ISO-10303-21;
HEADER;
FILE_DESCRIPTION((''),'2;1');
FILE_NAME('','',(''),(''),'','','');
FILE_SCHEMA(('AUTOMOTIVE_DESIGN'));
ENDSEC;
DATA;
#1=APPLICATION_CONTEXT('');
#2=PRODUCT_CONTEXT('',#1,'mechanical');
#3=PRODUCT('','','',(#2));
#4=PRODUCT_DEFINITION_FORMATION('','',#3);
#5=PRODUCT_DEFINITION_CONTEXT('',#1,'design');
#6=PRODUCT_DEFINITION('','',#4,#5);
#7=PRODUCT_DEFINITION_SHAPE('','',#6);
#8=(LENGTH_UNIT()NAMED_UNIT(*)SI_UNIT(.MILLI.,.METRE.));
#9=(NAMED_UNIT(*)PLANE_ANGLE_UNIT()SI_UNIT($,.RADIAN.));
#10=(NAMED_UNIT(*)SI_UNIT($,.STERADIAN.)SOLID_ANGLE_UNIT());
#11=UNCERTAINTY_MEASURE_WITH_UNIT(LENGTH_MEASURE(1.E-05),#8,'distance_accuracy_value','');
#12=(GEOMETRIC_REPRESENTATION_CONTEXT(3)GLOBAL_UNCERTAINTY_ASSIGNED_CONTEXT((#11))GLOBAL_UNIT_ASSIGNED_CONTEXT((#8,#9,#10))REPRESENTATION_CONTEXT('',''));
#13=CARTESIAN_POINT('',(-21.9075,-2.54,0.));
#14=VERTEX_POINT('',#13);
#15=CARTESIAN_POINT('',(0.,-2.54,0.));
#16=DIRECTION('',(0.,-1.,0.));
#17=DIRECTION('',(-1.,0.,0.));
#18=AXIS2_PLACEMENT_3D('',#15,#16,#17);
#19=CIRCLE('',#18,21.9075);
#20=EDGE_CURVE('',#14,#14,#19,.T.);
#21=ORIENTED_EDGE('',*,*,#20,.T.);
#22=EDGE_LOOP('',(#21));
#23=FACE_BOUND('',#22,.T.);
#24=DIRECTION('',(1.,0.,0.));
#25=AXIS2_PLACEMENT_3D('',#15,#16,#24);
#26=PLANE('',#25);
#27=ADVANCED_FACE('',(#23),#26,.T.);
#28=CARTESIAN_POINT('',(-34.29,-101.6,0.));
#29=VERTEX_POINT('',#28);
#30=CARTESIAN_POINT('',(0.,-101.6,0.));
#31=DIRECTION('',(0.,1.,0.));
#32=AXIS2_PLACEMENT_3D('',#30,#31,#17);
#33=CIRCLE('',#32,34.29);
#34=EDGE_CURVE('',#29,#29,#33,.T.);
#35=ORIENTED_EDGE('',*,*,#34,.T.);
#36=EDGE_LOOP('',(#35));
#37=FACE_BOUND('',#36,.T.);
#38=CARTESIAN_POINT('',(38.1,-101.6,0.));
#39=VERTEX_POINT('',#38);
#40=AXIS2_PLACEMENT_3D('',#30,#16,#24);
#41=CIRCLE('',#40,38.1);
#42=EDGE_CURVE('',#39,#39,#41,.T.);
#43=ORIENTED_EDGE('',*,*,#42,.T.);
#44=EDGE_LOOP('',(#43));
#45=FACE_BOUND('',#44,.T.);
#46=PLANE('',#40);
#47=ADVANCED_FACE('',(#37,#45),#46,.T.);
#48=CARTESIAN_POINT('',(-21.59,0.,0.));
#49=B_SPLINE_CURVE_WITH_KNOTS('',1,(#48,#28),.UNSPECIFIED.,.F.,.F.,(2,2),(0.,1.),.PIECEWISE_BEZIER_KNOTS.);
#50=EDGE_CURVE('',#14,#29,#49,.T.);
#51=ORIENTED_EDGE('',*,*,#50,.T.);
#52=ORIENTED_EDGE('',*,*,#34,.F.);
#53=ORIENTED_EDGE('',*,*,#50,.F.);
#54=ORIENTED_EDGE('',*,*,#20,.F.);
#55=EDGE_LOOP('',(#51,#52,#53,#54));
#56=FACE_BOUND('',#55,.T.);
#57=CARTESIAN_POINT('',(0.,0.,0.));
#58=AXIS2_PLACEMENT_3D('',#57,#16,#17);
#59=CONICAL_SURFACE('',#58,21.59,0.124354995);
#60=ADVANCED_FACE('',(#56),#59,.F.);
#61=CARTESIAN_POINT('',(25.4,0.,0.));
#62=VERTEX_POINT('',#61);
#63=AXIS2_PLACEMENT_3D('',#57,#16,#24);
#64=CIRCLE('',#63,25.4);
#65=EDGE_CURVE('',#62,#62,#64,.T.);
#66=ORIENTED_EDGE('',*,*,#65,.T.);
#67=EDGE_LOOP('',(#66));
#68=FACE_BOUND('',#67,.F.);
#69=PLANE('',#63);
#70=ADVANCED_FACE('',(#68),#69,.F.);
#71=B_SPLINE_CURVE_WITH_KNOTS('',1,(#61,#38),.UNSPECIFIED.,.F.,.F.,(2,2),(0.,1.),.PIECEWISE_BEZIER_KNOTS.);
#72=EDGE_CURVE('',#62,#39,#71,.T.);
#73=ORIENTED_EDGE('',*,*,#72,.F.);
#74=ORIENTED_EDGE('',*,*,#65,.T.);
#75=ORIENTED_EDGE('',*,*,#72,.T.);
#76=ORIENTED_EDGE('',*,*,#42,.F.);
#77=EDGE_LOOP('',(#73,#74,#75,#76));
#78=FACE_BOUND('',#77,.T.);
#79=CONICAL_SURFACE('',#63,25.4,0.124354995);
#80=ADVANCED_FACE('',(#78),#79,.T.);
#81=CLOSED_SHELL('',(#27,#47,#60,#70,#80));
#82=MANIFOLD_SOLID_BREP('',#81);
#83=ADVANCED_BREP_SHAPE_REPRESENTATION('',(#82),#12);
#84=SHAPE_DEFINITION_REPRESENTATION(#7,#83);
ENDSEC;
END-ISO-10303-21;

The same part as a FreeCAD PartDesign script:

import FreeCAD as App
import Part
import Sketcher

V = App.Vector
Q = App.Units.Quantity

doc = App.newDocument("Part")
params = doc.addObject("Spreadsheet::Sheet", "Params")
for row, (alias, value) in enumerate([
    ("sketch1_diameter", "2 in"),
    ("sketch2_diameter", "3 in"),
    ("sketch3_diameter", "1.7 in"),
    ("sketch4_diameter", "2.7 in"),
    ("pad1_length", "0.1 in"),
], start=1):
    params.set(f"A{row}", alias)
    params.set(f"B{row}", "=" + value)
    params.setAlias(f"B{row}", alias)

body = doc.addObject("PartDesign::Body", "Body")

sketch1 = doc.addObject("Sketcher::SketchObject", "Sketch")
body.addObject(sketch1)
sketch1.AttachmentSupport = (doc.XZ_Plane, [""])
sketch1.MapMode = "FlatFace"
sketch1.addGeometry(Part.Circle(V(0, 0, 0), V(0, 0, 1), 25), False)
sketch1.addConstraint([
    Sketcher.Constraint("Coincident", 0, 3, -1, 1),
    Sketcher.Constraint("Diameter", 0, Q("2 in")),
])
sketch1.setExpression("Constraints[1]", "Params.sketch1_diameter")

sketch2 = doc.addObject("Sketcher::SketchObject", "Sketch001")
body.addObject(sketch2)
sketch2.AttachmentSupport = (doc.XZ_Plane, [""])
sketch2.MapMode = "FlatFace"
sketch2.AttachmentOffset = App.Placement(V(0, 0, 4 * 25.4), App.Rotation())
sketch2.addGeometry(Part.Circle(V(0, 0, 0), V(0, 0, 1), 38), False)
sketch2.addConstraint([
    Sketcher.Constraint("Coincident", 0, 3, -1, 1),
    Sketcher.Constraint("Diameter", 0, Q("3 in")),
])
sketch2.setExpression("Constraints[1]", "Params.sketch2_diameter")

additiveloft = doc.addObject("PartDesign::AdditiveLoft", "AdditiveLoft")
body.addObject(additiveloft)
additiveloft.Profile = sketch1
additiveloft.Sections = [sketch2]

sketch3 = doc.addObject("Sketcher::SketchObject", "Sketch002")
body.addObject(sketch3)
sketch3.AttachmentSupport = (doc.XZ_Plane, [""])
sketch3.MapMode = "FlatFace"
sketch3.addGeometry(Part.Circle(V(0, 0, 0), V(0, 0, 1), 22), False)
sketch3.addConstraint([
    Sketcher.Constraint("Coincident", 0, 3, -1, 1),
    Sketcher.Constraint("Diameter", 0, Q("1.7 in")),
])
sketch3.setExpression("Constraints[1]", "Params.sketch3_diameter")

sketch4 = doc.addObject("Sketcher::SketchObject", "Sketch003")
body.addObject(sketch4)
sketch4.AttachmentSupport = (doc.XZ_Plane, [""])
sketch4.MapMode = "FlatFace"
sketch4.AttachmentOffset = App.Placement(V(0, 0, 4 * 25.4), App.Rotation())
sketch4.addGeometry(Part.Circle(V(0, 0, 0), V(0, 0, 1), 34), False)
sketch4.addConstraint([
    Sketcher.Constraint("Coincident", 0, 3, -1, 1),
    Sketcher.Constraint("Diameter", 0, Q("2.7 in")),
])
sketch4.setExpression("Constraints[1]", "Params.sketch4_diameter")

subtractiveloft = doc.addObject("PartDesign::SubtractiveLoft", "SubtractiveLoft")
body.addObject(subtractiveloft)
subtractiveloft.Profile = sketch3
subtractiveloft.Sections = [sketch4]

sketch5 = doc.addObject("Sketcher::SketchObject", "Sketch004")
body.addObject(sketch5)
sketch5.AttachmentSupport = (doc.XZ_Plane, [""])
sketch5.MapMode = "FlatFace"
sketch5.addGeometry(Part.Circle(V(0, 0, 0), V(0, 0, 1), 25), False)
sketch5.addConstraint([
    Sketcher.Constraint("Coincident", 0, 3, -1, 1),
    Sketcher.Constraint("Diameter", 0, 49.947792),
])
pad1 = doc.addObject("PartDesign::Pad", "Pad")
body.addObject(pad1)
pad1.Profile = sketch5
pad1.setExpression("Length", "Params.pad1_length")

doc.recompute()
